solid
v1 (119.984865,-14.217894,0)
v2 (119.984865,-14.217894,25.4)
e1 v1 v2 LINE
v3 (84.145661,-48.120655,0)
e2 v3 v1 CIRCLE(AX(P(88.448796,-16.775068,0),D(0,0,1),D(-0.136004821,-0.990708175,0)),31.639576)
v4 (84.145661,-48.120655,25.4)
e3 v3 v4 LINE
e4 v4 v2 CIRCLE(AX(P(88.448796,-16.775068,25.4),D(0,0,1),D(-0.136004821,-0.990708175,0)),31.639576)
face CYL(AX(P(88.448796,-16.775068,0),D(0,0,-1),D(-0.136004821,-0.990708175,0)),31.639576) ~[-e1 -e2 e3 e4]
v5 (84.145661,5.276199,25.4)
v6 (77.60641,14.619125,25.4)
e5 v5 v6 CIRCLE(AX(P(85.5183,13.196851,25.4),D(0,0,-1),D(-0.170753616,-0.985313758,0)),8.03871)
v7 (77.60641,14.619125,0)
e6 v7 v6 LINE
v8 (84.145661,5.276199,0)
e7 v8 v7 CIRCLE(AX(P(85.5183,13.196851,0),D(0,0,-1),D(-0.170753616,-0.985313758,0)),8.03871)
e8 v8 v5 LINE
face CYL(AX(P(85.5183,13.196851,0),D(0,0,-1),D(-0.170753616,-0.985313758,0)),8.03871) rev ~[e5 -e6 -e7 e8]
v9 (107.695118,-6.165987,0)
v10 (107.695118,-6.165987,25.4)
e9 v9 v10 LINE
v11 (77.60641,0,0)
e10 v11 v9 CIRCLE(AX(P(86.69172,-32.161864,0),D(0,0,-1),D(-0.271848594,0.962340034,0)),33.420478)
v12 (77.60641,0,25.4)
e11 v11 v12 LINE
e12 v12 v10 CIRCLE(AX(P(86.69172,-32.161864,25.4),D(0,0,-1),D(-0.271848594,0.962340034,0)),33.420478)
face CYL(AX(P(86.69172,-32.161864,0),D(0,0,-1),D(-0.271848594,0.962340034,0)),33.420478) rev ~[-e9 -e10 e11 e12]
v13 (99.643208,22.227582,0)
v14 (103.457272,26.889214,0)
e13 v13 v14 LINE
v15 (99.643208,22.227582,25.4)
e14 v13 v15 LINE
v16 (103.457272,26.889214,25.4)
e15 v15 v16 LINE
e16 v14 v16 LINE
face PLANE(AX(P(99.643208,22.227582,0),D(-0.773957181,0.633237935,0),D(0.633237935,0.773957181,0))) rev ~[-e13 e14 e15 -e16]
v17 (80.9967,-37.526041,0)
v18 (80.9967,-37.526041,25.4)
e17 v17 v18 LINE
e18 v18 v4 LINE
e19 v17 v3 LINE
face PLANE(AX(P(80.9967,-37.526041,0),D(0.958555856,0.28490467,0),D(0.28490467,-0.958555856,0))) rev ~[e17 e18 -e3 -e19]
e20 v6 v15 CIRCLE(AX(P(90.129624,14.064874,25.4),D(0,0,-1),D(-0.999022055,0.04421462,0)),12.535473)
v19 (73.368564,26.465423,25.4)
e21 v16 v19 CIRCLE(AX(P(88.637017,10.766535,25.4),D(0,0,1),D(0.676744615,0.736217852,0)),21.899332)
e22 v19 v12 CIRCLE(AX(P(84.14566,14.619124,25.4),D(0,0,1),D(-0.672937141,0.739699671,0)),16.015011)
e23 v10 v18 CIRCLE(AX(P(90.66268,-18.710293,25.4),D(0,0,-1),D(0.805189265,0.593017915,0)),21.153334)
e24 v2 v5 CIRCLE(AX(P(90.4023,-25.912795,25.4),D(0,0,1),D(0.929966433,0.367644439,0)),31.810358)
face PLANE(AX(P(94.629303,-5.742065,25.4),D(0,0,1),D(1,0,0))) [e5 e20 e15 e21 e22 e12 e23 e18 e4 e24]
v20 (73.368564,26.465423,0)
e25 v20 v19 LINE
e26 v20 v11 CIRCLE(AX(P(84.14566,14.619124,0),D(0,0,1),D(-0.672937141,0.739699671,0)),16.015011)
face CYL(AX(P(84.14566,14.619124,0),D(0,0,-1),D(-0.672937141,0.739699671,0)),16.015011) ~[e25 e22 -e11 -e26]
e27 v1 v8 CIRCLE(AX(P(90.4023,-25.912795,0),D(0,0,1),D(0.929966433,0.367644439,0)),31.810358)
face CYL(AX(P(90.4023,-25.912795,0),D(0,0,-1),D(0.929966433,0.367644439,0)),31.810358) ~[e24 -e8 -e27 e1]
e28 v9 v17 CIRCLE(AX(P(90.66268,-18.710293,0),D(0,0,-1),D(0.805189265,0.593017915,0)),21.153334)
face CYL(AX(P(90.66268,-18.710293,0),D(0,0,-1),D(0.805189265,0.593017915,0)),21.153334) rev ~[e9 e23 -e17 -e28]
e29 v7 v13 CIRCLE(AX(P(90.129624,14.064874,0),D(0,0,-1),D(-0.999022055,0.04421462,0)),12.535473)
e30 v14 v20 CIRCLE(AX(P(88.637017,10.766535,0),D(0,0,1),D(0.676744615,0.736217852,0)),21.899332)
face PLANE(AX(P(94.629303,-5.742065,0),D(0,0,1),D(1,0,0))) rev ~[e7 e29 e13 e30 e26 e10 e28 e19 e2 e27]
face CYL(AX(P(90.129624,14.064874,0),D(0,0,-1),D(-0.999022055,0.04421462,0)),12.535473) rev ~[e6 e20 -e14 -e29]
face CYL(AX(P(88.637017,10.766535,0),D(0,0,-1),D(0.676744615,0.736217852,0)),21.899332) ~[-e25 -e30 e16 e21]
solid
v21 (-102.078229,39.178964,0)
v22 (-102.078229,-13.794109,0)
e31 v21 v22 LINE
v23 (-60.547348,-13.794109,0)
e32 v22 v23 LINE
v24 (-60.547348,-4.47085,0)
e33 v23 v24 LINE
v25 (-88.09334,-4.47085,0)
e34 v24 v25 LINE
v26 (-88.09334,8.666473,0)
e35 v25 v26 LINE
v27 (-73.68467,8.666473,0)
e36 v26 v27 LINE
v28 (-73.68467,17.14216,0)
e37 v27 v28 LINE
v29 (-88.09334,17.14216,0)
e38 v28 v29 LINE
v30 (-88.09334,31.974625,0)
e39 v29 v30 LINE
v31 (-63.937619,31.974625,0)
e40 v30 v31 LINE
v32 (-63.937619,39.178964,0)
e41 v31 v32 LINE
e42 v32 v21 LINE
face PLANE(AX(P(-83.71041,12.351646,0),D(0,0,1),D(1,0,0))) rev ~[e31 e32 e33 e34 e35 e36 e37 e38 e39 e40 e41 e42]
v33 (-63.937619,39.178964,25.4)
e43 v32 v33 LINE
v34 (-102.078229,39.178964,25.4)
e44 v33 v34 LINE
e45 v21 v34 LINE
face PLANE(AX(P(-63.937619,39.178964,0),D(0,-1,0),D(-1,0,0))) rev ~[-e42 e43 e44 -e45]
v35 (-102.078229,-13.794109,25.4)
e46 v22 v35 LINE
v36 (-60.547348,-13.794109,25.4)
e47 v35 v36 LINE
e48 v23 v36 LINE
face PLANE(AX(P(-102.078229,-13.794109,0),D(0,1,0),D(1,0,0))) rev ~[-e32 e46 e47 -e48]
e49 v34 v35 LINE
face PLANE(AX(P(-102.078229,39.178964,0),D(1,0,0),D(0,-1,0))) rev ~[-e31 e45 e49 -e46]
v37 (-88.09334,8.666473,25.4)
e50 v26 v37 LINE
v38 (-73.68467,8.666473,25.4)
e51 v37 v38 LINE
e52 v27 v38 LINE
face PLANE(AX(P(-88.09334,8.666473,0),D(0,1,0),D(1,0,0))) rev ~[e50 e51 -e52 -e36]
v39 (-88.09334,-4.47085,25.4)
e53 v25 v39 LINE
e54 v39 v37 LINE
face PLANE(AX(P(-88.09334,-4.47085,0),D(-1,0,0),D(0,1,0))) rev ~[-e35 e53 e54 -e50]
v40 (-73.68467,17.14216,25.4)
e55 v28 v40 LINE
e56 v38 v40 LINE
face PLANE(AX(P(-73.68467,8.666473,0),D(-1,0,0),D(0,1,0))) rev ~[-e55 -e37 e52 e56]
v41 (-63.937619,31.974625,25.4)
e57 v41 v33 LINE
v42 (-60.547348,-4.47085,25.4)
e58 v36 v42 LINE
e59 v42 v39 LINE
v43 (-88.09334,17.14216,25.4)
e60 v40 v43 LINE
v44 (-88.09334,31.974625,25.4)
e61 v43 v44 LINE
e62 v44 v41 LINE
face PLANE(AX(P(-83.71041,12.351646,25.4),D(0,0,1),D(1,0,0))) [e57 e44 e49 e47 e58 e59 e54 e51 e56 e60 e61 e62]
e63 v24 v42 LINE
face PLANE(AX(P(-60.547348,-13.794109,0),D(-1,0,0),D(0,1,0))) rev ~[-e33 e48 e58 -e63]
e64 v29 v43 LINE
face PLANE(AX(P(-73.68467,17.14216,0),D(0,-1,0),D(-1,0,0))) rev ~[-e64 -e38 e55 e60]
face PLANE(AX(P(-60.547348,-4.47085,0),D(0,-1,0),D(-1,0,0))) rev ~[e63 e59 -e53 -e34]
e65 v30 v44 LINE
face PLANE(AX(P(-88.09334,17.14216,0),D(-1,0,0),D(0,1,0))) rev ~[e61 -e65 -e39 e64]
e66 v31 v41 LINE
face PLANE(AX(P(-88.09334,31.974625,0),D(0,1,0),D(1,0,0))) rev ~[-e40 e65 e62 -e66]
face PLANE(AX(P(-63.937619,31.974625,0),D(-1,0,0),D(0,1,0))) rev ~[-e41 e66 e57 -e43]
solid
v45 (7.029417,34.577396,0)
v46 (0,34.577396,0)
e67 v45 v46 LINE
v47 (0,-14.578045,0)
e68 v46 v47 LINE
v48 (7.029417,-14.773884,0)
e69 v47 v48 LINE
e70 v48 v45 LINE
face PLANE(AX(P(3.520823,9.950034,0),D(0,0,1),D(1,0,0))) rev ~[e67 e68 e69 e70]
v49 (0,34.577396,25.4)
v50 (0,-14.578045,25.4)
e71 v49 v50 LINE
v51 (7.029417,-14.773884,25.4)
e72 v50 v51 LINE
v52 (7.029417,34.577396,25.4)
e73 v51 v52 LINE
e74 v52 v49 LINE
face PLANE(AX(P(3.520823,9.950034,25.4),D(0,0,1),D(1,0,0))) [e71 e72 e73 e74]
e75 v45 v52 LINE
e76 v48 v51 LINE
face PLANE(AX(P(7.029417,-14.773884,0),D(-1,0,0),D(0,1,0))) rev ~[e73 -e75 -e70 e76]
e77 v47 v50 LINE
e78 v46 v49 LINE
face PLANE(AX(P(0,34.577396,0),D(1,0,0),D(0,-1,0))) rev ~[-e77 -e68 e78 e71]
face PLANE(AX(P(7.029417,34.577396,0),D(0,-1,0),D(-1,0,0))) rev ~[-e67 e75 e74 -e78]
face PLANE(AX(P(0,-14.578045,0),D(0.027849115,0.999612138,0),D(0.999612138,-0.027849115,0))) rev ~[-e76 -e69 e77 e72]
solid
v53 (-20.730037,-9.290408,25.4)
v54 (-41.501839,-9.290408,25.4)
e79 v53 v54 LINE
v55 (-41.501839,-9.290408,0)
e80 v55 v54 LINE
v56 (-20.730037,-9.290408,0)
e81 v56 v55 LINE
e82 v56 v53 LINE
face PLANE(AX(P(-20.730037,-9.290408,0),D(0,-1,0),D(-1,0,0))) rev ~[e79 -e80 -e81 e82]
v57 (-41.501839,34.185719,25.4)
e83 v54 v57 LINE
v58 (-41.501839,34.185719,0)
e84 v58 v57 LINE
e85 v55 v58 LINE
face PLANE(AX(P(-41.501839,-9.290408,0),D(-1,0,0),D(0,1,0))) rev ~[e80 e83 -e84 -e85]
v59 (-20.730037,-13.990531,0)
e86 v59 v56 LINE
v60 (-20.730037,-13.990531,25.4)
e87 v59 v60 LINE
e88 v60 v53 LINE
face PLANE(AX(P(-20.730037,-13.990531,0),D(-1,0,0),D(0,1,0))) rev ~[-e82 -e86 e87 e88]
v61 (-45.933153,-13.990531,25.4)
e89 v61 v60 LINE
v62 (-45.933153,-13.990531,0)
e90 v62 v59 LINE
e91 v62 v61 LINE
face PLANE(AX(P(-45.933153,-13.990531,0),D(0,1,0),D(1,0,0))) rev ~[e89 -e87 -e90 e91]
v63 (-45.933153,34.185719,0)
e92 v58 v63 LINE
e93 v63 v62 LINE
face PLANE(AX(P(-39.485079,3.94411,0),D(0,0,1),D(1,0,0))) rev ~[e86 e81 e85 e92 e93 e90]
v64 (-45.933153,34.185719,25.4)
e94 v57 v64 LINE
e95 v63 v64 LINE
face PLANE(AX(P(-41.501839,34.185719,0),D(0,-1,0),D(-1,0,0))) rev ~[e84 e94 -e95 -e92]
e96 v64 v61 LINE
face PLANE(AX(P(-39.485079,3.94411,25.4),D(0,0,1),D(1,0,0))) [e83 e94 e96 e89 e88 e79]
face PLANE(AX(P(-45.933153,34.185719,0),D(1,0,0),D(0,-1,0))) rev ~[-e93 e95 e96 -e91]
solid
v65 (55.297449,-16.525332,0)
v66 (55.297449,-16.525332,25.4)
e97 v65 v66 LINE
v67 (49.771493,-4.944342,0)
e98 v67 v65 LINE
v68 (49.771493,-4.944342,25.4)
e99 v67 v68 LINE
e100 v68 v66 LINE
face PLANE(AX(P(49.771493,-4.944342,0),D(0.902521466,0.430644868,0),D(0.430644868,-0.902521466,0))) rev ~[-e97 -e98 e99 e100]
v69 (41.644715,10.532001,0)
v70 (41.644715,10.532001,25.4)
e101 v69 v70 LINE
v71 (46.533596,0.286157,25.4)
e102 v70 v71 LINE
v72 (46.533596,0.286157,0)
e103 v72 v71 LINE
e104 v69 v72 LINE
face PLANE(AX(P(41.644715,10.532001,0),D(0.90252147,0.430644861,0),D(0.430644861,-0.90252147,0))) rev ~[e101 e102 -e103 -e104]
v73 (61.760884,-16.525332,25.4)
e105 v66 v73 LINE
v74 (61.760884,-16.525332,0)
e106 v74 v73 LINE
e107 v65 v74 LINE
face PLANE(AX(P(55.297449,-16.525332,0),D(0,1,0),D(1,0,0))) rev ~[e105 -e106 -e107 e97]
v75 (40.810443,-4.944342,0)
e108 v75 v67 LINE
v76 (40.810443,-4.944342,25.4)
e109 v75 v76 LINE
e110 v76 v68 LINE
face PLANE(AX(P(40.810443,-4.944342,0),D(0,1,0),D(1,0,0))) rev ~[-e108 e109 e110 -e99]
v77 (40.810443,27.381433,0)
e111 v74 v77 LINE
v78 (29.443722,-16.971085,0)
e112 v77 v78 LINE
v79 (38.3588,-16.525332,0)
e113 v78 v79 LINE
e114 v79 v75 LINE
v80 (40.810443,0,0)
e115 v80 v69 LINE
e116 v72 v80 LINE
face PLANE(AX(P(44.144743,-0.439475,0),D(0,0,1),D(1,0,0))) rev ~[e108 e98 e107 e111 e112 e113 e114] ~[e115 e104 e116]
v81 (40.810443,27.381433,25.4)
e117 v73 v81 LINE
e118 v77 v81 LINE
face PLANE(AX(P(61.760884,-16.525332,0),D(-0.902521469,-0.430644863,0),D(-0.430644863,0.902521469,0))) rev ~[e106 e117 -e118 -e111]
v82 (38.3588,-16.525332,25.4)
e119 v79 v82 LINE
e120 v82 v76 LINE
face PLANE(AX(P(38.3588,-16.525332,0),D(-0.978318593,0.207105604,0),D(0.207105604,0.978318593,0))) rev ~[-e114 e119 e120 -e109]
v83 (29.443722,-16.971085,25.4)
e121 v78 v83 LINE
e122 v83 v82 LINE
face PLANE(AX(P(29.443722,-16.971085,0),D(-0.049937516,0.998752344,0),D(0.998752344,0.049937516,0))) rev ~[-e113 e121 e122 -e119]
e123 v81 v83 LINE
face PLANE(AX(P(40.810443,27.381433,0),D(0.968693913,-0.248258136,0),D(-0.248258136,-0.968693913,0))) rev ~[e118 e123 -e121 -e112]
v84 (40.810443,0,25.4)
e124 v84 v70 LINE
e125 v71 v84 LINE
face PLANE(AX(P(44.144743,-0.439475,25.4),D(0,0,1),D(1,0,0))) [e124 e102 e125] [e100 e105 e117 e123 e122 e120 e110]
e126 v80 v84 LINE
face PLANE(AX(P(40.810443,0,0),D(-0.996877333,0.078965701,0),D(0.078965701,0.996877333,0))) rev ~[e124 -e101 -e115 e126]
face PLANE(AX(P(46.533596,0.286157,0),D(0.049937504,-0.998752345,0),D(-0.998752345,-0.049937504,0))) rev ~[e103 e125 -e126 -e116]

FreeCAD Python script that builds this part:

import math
import FreeCAD as App
import Part
import Sketcher

V = App.Vector
Q = App.Units.Quantity


def add_polygon(sketch, points):
    """Adds a closed chain of lines whose ends are joined by coincident constraints."""
    first, n = sketch.GeometryCount, len(points)
    for a, b in zip(points, points[1:] + points[:1]):
        sketch.addGeometry(Part.LineSegment(App.Vector(*a, 0), App.Vector(*b, 0)), False)
    for i in range(n):
        sketch.addConstraint(Sketcher.Constraint("Coincident", first + i, 2, first + (i + 1) % n, 1))

doc = App.newDocument("Part")
body = doc.addObject("PartDesign::Body", "Body")

# Sketch on XY plane
sketch1 = doc.addObject("Sketcher::SketchObject", "Sketch")
body.addObject(sketch1)
sketch1.AttachmentSupport = (doc.XY_Plane, [""])
sketch1.MapMode = "FlatFace"
add_polygon(sketch1, [(41, 27), (29, -17), (38, -17), (41, -5), (50, -5), (55, -17), (62, -17)])  # lines 0-6
add_polygon(sketch1, [(42, 11), (47, 0), (41, 0)])  # lines 7-9
sketch1.addConstraint([
    Sketcher.Constraint("Horizontal", 3),
    Sketcher.Constraint("Horizontal", 5),
    Sketcher.Constraint("PointOnObject", 8, 2, -1),
    Sketcher.Constraint("Parallel", 4, 6),
    Sketcher.Constraint("Parallel", 6, 7),
    Sketcher.Constraint("Parallel", 1, 8),
    Sketcher.Constraint("Horizontal", 1, 2, 4, 2),
    Sketcher.Constraint("Vertical", 2, 2, 6, 2),
    Sketcher.Constraint("Vertical", 6, 2, 8, 2),
    Sketcher.Constraint("DistanceX", 3, 1, 3, 2, Q("8.96105 mm")),
    Sketcher.Constraint("DistanceX", -1, 1, 1, 2, Q("38.3588 mm")),
    Sketcher.Constraint("DistanceY", -1, 1, 9, 2, Q("10.532001 mm")),
    Sketcher.Constraint("DistanceY", 3, 2, 7, 2, Q("5.230499 mm")),
    Sketcher.Constraint("Distance", 9, Q("10.564992 mm")),
    Sketcher.Constraint("DistanceX", 5, 1, 5, 2, Q("6.463435 mm")),
    Sketcher.Constraint("DistanceY", 1, 2, -1, 1, Q("16.525332 mm")),
    Sketcher.Constraint("DistanceY", 2, 2, -1, 1, Q("4.944342 mm")),
    Sketcher.Constraint("DistanceX", -1, 1, 4, 2, Q("55.297449 mm")),
    Sketcher.Constraint("DistanceX", 0, 2, 1, 2, Q("8.915078 mm")),
    Sketcher.Constraint("DistanceX", 0, 2, 2, 2, Q("11.366721 mm")),
])
pad1 = doc.addObject("PartDesign::Pad", "Pad")
body.addObject(pad1)
pad1.Profile = sketch1
pad1.Length = Q("1 in")
body2 = doc.addObject("PartDesign::Body", "Body001")

# Sketch on XY plane
sketch2 = doc.addObject("Sketcher::SketchObject", "Sketch001")
body2.addObject(sketch2)
sketch2.AttachmentSupport = (doc.getObject("XY_Plane001"), [""])
sketch2.MapMode = "FlatFace"
add_polygon(sketch2, [(0, 35), (0, -15), (7, -15), (7, 35)])  # lines 0-3
sketch2.addConstraint([
    Sketcher.Constraint("Vertical", 0),
    Sketcher.Constraint("Vertical", 2),
    Sketcher.Constraint("Horizontal", 3),
    Sketcher.Constraint("PointOnObject", 0, 2, -2),
    Sketcher.Constraint("DistanceY", 0, 2, 0, 1, Q("49.155441 mm")),
    Sketcher.Constraint("DistanceY", 2, 1, 2, 2, Q("49.35128 mm")),
    Sketcher.Constraint("DistanceX", 3, 2, 3, 1, Q("7.029417 mm")),
    Sketcher.Constraint("DistanceY", 0, 2, -1, 1, Q("14.578045 mm")),
])
pad2 = doc.addObject("PartDesign::Pad", "Pad001")
body2.addObject(pad2)
pad2.Profile = sketch2
pad2.Length = Q("1 in")
body3 = doc.addObject("PartDesign::Body", "Body002")

# Sketch on XY plane
sketch3 = doc.addObject("Sketcher::SketchObject", "Sketch002")
body3.addObject(sketch3)
sketch3.AttachmentSupport = (doc.getObject("XY_Plane002"), [""])
sketch3.MapMode = "FlatFace"
add_polygon(sketch3, [(-41.5, 34.2), (-45.9, 34.2), (-45.9, -14), (-20.7, -14), (-20.7, -9.3), (-41.5, -9.3)])  # lines 0-5
sketch3.addConstraint([
    Sketcher.Constraint("Horizontal", 0),
    Sketcher.Constraint("Vertical", 1),
    Sketcher.Constraint("Horizontal", 2),
    Sketcher.Constraint("Vertical", 3),
    Sketcher.Constraint("Horizontal", 4),
    Sketcher.Constraint("Vertical", 5),
    Sketcher.Constraint("DistanceX", 4, 2, 4, 1, Q("20.771802 mm")),
    Sketcher.Constraint("DistanceY", 1, 2, 1, 1, Q("48.17625 mm")),
    Sketcher.Constraint("DistanceX", 0, 2, 0, 1, Q("4.431314 mm")),
    Sketcher.Constraint("DistanceY", 3, 1, 3, 2, Q("4.700123 mm")),
    Sketcher.Constraint("DistanceY", -1, 1, 0, 2, Q("34.185719 mm")),
    Sketcher.Constraint("DistanceX", 4, 2, -1, 1, Q("41.501839 mm")),
])
pad3 = doc.addObject("PartDesign::Pad", "Pad002")
body3.addObject(pad3)
pad3.Profile = sketch3
pad3.Length = Q("1 in")
body4 = doc.addObject("PartDesign::Body", "Body003")

# Sketch on XY plane
sketch4 = doc.addObject("Sketcher::SketchObject", "Sketch003")
body4.addObject(sketch4)
sketch4.AttachmentSupport = (doc.getObject("XY_Plane003"), [""])
sketch4.MapMode = "FlatFace"
add_polygon(sketch4, [(-102, -14), (-61, -14), (-61, -4), (-88, -4), (-88, 9), (-74, 9), (-74, 17), (-88, 17), (-88, 32), (-64, 32), (-64, 39), (-102, 39)])  # lines 0-11
sketch4.addConstraint([
    Sketcher.Constraint("Horizontal", 0),
    Sketcher.Constraint("Vertical", 1),
    Sketcher.Constraint("Horizontal", 2),
    Sketcher.Constraint("Vertical", 3),
    Sketcher.Constraint("Horizontal", 4),
    Sketcher.Constraint("Vertical", 5),
    Sketcher.Constraint("Horizontal", 6),
    Sketcher.Constraint("Vertical", 7),
    Sketcher.Constraint("Horizontal", 8),
    Sketcher.Constraint("Vertical", 9),
    Sketcher.Constraint("Horizontal", 10),
    Sketcher.Constraint("Vertical", 11),
    Sketcher.Constraint("Vertical", 3, 2, 6, 2),
    Sketcher.Constraint("DistanceX", 0, 1, 0, 2, Q("41.530881 mm")),
    Sketcher.Constraint("DistanceX", 2, 2, 2, 1, Q("27.545992 mm")),
    Sketcher.Constraint("DistanceX", 4, 1, 4, 2, Q("14.40867 mm")),
    Sketcher.Constraint("DistanceX", 8, 1, 8, 2, Q("24.155721 mm")),
    Sketcher.Constraint("DistanceY", 1, 1, 1, 2, Q("9.323259 mm")),
    Sketcher.Constraint("DistanceY", 9, 1, 9, 2, Q("7.204339 mm")),
    Sketcher.Constraint("DistanceY", 3, 1, 3, 2, Q("13.137323 mm")),
    Sketcher.Constraint("DistanceY", 5, 1, 5, 2, Q("8.475687 mm")),
    Sketcher.Constraint("DistanceY", 7, 1, 7, 2, Q("14.832465 mm")),
    Sketcher.Constraint("DistanceY", 0, 2, -1, 1, Q("13.794109 mm")),
    Sketcher.Constraint("DistanceX", 2, 2, -1, 1, Q("88.09334 mm")),
])
pad4 = doc.addObject("PartDesign::Pad", "Pad003")
body4.addObject(pad4)
pad4.Profile = sketch4
pad4.Length = Q("1 in")
body5 = doc.addObject("PartDesign::Body", "Body004")

# Sketch on XY plane
sketch5 = doc.addObject("Sketcher::SketchObject", "Sketch004")
body5.addObject(sketch5)
sketch5.AttachmentSupport = (doc.getObject("XY_Plane004"), [""])
sketch5.MapMode = "FlatFace"
sketch5.addGeometry([
    Part.LineSegment(V(100, 22, 0), V(103, 27, 0)),  # 0
    Part.ArcOfCircle(Part.Circle(V(89, 11, 0), V(0, 0, 1), 22), math.radians(47), math.radians(134)),  # 1
    Part.ArcOfCircle(Part.Circle(V(84, 15, 0), V(0, 0, 1), 16), math.radians(132), math.radians(246)),  # 2
    Part.ArcOfCircle(Part.Circle(V(87, -32, 0), V(0, 0, 1), 33), math.radians(51), math.radians(106)),  # 3
    Part.ArcOfCircle(Part.Circle(V(91, -19, 0), V(0, 0, 1), 21), math.radians(-117), math.radians(36)),  # 4
    Part.LineSegment(V(81, -38, 0), V(84, -48, 0)),  # 5
    Part.ArcOfCircle(Part.Circle(V(88, -17, 0), V(0, 0, 1), 32), math.radians(-98), math.radians(5)),  # 6
    Part.ArcOfCircle(Part.Circle(V(90, -26, 0), V(0, 0, 1), 32), math.radians(22), math.radians(101)),  # 7
    Part.ArcOfCircle(Part.Circle(V(86, 13, 0), V(0, 0, 1), 8), math.radians(170), math.radians(260)),  # 8
    Part.ArcOfCircle(Part.Circle(V(90, 14, 0), V(0, 0, 1), 13), math.radians(41), math.radians(177)),  # 9
], False)
sketch5.addConstraint([
    Sketcher.Constraint("Coincident", 0, 2, 1, 1),
    Sketcher.Constraint("Coincident", 1, 2, 2, 1),
    Sketcher.Constraint("Coincident", 2, 2, 3, 2),
    Sketcher.Constraint("Coincident", 3, 1, 4, 2),
    Sketcher.Constraint("Coincident", 4, 1, 5, 1),
    Sketcher.Constraint("Coincident", 5, 2, 6, 1),
    Sketcher.Constraint("Coincident", 6, 2, 7, 1),
    Sketcher.Constraint("Coincident", 7, 2, 8, 2),
    Sketcher.Constraint("Coincident", 8, 1, 9, 2),
    Sketcher.Constraint("Coincident", 9, 1, 0, 1),
    Sketcher.Constraint("PointOnObject", 2, 2, -1),
    Sketcher.Constraint("Horizontal", 2, 3, 8, 1),
    Sketcher.Constraint("Vertical", 2, 3, 5, 2),
    Sketcher.Constraint("Vertical", 5, 2, 7, 2),
    Sketcher.Constraint("Vertical", 2, 2, 8, 1),
    Sketcher.Constraint("Radius", 2, Q("16.015011 mm")),
    Sketcher.Constraint("Radius", 7, Q("31.810358 mm")),
    Sketcher.Constraint("Radius", 8, Q("8.03871 mm")),
    Sketcher.Constraint("Radius", 1, Q("21.899332 mm")),
    Sketcher.Constraint("Radius", 3, Q("33.420478 mm")),
    Sketcher.Constraint("Radius", 4, Q("21.153334 mm")),
    Sketcher.Constraint("Radius", 6, Q("31.639576 mm")),
    Sketcher.Constraint("Radius", 9, Q("12.535473 mm")),
    Sketcher.Constraint("DistanceX", -1, 1, 7, 3, Q("90.4023 mm")),
    Sketcher.Constraint("DistanceX", -1, 1, 8, 3, Q("85.5183 mm")),
    Sketcher.Constraint("DistanceX", -1, 1, 4, 1, Q("80.9967 mm")),
    Sketcher.Constraint("DistanceY", -1, 1, 7, 2, Q("5.276199 mm")),
    Sketcher.Constraint("DistanceY", 3, 3, 1, 3, Q("42.928399 mm")),
    Sketcher.Constraint("DistanceY", 2, 3, 1, 2, Q("11.846299 mm")),
    Sketcher.Constraint("DistanceX", 1, 3, 3, 1, Q("19.058101 mm")),
    Sketcher.Constraint("DistanceY", 4, 3, 6, 2, Q("4.492399 mm")),
    Sketcher.Constraint("DistanceY", 7, 3, 6, 2, Q("11.694901 mm")),
    Sketcher.Constraint("DistanceX", -1, 1, 2, 3, Q("84.14566 mm")),
    Sketcher.Constraint("DistanceX", -1, 1, 3, 3, Q("86.69172 mm")),
    Sketcher.Constraint("DistanceY", 6, 3, -1, 1, Q("16.775068 mm")),
    Sketcher.Constraint("DistanceX", -1, 1, 9, 1, Q("99.643208 mm")),
    Sketcher.Constraint("DistanceY", 1, 3, 9, 3, Q("3.298339 mm")),
    Sketcher.Constraint("DistanceY", 9, 3, 0, 2, Q("12.82434 mm")),
])
pad5 = doc.addObject("PartDesign::Pad", "Pad004")
body5.addObject(pad5)
pad5.Profile = sketch5
pad5.Length = Q("1 in")

doc.recompute()
